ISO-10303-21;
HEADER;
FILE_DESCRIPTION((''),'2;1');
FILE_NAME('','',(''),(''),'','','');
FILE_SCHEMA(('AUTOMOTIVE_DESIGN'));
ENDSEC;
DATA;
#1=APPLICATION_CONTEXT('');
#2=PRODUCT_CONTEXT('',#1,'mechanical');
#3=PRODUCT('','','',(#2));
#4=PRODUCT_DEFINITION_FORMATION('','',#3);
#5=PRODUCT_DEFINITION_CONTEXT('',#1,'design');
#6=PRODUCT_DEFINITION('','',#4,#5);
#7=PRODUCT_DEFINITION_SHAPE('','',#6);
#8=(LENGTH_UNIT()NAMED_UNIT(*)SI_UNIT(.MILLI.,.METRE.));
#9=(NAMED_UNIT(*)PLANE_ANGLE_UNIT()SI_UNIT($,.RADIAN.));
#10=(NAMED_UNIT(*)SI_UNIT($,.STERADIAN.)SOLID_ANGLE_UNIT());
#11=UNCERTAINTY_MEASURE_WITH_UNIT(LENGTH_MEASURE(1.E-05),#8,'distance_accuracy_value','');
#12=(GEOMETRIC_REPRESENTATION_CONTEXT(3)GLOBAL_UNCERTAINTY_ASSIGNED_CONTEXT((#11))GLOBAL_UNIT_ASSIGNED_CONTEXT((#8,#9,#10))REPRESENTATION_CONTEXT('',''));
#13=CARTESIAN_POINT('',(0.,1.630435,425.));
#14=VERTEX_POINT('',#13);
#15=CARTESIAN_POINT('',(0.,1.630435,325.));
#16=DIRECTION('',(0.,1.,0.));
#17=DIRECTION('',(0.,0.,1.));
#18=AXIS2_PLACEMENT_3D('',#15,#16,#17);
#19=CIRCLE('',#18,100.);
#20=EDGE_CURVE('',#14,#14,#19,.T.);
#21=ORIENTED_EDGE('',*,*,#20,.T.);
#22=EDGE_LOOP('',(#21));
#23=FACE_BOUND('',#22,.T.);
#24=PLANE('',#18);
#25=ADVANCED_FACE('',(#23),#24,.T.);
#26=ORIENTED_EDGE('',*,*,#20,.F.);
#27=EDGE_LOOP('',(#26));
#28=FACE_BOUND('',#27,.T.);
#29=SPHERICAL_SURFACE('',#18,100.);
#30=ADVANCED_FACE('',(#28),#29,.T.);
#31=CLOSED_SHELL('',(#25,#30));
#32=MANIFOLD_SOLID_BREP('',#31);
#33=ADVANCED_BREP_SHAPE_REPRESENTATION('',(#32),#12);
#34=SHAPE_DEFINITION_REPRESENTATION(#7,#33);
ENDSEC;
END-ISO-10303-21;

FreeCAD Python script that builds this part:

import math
import FreeCAD as App
import Part
import Sketcher
from FreeCAD import Vector

doc = App.newDocument("Part")
params = doc.addObject("Spreadsheet::Sheet", "Params")
for row, (alias, value) in enumerate([
    ("sketch1_radius", "100 mm"),
    ("revolution_angle", "360 deg"),
], start=1):
    params.set(f"A{row}", alias)
    params.set(f"B{row}", "=" + value)
    params.setAlias(f"B{row}", alias)

body = doc.addObject("PartDesign::Body", "Body")

# Sketch on YZ plane
sketch1 = doc.addObject("Sketcher::SketchObject", "Sketch")
body.addObject(sketch1)
sketch1.AttachmentSupport = (doc.YZ_Plane, [""])
sketch1.MapMode = "FlatFace"
sketch1.addGeometry(Part.LineSegment(Vector(2, 325, 0), Vector(2, 425, 0)), False)
sketch1.addGeometry(Part.ArcOfCircle(Part.Circle(Vector(2, 325, 0), Vector(0, 0, 1), 100), math.radians(90), math.radians(180)), False)
sketch1.addGeometry(Part.LineSegment(Vector(-98, 325, 0), Vector(2, 325, 0)), False)
sketch1.addGeometry(Part.LineSegment(Vector(2, 325, 0), Vector(-98, 325, 0)), True)  # axis
sketch1.addConstraint(Sketcher.Constraint("Coincident", 0, 2, 1, 1))
sketch1.addConstraint(Sketcher.Constraint("Coincident", 1, 2, 2, 1))
sketch1.addConstraint(Sketcher.Constraint("Coincident", 2, 2, 0, 1))
sketch1.addConstraint(Sketcher.Constraint("Vertical", 0))
sketch1.addConstraint(Sketcher.Constraint("Horizontal", 2))
sketch1.addConstraint(Sketcher.Constraint("Horizontal", 3))
sketch1.addConstraint(Sketcher.Constraint("Coincident", 2, 2, 1, 3))
sketch1.addConstraint(Sketcher.Constraint("Coincident", 3, 1, 1, 3))
sketch1.addConstraint(Sketcher.Constraint("Equal", 2, 3))
sketch1.addConstraint(Sketcher.Constraint("Radius", 1, 100.0))
sketch1.addConstraint(Sketcher.Constraint("DistanceY", -1, 1, 1, 3, 325.0))
sketch1.addConstraint(Sketcher.Constraint("DistanceX", -1, 1, 1, 3, 1.630435))
sketch1.setExpression("Constraints[9]", "Params.sketch1_radius")
revolution = doc.addObject("PartDesign::Revolution", "Revolution")
body.addObject(revolution)
revolution.Profile = sketch1
revolution.ReferenceAxis = (sketch1, ["Axis0"])
revolution.setExpression("Angle", "Params.revolution_angle")

doc.recompute()
